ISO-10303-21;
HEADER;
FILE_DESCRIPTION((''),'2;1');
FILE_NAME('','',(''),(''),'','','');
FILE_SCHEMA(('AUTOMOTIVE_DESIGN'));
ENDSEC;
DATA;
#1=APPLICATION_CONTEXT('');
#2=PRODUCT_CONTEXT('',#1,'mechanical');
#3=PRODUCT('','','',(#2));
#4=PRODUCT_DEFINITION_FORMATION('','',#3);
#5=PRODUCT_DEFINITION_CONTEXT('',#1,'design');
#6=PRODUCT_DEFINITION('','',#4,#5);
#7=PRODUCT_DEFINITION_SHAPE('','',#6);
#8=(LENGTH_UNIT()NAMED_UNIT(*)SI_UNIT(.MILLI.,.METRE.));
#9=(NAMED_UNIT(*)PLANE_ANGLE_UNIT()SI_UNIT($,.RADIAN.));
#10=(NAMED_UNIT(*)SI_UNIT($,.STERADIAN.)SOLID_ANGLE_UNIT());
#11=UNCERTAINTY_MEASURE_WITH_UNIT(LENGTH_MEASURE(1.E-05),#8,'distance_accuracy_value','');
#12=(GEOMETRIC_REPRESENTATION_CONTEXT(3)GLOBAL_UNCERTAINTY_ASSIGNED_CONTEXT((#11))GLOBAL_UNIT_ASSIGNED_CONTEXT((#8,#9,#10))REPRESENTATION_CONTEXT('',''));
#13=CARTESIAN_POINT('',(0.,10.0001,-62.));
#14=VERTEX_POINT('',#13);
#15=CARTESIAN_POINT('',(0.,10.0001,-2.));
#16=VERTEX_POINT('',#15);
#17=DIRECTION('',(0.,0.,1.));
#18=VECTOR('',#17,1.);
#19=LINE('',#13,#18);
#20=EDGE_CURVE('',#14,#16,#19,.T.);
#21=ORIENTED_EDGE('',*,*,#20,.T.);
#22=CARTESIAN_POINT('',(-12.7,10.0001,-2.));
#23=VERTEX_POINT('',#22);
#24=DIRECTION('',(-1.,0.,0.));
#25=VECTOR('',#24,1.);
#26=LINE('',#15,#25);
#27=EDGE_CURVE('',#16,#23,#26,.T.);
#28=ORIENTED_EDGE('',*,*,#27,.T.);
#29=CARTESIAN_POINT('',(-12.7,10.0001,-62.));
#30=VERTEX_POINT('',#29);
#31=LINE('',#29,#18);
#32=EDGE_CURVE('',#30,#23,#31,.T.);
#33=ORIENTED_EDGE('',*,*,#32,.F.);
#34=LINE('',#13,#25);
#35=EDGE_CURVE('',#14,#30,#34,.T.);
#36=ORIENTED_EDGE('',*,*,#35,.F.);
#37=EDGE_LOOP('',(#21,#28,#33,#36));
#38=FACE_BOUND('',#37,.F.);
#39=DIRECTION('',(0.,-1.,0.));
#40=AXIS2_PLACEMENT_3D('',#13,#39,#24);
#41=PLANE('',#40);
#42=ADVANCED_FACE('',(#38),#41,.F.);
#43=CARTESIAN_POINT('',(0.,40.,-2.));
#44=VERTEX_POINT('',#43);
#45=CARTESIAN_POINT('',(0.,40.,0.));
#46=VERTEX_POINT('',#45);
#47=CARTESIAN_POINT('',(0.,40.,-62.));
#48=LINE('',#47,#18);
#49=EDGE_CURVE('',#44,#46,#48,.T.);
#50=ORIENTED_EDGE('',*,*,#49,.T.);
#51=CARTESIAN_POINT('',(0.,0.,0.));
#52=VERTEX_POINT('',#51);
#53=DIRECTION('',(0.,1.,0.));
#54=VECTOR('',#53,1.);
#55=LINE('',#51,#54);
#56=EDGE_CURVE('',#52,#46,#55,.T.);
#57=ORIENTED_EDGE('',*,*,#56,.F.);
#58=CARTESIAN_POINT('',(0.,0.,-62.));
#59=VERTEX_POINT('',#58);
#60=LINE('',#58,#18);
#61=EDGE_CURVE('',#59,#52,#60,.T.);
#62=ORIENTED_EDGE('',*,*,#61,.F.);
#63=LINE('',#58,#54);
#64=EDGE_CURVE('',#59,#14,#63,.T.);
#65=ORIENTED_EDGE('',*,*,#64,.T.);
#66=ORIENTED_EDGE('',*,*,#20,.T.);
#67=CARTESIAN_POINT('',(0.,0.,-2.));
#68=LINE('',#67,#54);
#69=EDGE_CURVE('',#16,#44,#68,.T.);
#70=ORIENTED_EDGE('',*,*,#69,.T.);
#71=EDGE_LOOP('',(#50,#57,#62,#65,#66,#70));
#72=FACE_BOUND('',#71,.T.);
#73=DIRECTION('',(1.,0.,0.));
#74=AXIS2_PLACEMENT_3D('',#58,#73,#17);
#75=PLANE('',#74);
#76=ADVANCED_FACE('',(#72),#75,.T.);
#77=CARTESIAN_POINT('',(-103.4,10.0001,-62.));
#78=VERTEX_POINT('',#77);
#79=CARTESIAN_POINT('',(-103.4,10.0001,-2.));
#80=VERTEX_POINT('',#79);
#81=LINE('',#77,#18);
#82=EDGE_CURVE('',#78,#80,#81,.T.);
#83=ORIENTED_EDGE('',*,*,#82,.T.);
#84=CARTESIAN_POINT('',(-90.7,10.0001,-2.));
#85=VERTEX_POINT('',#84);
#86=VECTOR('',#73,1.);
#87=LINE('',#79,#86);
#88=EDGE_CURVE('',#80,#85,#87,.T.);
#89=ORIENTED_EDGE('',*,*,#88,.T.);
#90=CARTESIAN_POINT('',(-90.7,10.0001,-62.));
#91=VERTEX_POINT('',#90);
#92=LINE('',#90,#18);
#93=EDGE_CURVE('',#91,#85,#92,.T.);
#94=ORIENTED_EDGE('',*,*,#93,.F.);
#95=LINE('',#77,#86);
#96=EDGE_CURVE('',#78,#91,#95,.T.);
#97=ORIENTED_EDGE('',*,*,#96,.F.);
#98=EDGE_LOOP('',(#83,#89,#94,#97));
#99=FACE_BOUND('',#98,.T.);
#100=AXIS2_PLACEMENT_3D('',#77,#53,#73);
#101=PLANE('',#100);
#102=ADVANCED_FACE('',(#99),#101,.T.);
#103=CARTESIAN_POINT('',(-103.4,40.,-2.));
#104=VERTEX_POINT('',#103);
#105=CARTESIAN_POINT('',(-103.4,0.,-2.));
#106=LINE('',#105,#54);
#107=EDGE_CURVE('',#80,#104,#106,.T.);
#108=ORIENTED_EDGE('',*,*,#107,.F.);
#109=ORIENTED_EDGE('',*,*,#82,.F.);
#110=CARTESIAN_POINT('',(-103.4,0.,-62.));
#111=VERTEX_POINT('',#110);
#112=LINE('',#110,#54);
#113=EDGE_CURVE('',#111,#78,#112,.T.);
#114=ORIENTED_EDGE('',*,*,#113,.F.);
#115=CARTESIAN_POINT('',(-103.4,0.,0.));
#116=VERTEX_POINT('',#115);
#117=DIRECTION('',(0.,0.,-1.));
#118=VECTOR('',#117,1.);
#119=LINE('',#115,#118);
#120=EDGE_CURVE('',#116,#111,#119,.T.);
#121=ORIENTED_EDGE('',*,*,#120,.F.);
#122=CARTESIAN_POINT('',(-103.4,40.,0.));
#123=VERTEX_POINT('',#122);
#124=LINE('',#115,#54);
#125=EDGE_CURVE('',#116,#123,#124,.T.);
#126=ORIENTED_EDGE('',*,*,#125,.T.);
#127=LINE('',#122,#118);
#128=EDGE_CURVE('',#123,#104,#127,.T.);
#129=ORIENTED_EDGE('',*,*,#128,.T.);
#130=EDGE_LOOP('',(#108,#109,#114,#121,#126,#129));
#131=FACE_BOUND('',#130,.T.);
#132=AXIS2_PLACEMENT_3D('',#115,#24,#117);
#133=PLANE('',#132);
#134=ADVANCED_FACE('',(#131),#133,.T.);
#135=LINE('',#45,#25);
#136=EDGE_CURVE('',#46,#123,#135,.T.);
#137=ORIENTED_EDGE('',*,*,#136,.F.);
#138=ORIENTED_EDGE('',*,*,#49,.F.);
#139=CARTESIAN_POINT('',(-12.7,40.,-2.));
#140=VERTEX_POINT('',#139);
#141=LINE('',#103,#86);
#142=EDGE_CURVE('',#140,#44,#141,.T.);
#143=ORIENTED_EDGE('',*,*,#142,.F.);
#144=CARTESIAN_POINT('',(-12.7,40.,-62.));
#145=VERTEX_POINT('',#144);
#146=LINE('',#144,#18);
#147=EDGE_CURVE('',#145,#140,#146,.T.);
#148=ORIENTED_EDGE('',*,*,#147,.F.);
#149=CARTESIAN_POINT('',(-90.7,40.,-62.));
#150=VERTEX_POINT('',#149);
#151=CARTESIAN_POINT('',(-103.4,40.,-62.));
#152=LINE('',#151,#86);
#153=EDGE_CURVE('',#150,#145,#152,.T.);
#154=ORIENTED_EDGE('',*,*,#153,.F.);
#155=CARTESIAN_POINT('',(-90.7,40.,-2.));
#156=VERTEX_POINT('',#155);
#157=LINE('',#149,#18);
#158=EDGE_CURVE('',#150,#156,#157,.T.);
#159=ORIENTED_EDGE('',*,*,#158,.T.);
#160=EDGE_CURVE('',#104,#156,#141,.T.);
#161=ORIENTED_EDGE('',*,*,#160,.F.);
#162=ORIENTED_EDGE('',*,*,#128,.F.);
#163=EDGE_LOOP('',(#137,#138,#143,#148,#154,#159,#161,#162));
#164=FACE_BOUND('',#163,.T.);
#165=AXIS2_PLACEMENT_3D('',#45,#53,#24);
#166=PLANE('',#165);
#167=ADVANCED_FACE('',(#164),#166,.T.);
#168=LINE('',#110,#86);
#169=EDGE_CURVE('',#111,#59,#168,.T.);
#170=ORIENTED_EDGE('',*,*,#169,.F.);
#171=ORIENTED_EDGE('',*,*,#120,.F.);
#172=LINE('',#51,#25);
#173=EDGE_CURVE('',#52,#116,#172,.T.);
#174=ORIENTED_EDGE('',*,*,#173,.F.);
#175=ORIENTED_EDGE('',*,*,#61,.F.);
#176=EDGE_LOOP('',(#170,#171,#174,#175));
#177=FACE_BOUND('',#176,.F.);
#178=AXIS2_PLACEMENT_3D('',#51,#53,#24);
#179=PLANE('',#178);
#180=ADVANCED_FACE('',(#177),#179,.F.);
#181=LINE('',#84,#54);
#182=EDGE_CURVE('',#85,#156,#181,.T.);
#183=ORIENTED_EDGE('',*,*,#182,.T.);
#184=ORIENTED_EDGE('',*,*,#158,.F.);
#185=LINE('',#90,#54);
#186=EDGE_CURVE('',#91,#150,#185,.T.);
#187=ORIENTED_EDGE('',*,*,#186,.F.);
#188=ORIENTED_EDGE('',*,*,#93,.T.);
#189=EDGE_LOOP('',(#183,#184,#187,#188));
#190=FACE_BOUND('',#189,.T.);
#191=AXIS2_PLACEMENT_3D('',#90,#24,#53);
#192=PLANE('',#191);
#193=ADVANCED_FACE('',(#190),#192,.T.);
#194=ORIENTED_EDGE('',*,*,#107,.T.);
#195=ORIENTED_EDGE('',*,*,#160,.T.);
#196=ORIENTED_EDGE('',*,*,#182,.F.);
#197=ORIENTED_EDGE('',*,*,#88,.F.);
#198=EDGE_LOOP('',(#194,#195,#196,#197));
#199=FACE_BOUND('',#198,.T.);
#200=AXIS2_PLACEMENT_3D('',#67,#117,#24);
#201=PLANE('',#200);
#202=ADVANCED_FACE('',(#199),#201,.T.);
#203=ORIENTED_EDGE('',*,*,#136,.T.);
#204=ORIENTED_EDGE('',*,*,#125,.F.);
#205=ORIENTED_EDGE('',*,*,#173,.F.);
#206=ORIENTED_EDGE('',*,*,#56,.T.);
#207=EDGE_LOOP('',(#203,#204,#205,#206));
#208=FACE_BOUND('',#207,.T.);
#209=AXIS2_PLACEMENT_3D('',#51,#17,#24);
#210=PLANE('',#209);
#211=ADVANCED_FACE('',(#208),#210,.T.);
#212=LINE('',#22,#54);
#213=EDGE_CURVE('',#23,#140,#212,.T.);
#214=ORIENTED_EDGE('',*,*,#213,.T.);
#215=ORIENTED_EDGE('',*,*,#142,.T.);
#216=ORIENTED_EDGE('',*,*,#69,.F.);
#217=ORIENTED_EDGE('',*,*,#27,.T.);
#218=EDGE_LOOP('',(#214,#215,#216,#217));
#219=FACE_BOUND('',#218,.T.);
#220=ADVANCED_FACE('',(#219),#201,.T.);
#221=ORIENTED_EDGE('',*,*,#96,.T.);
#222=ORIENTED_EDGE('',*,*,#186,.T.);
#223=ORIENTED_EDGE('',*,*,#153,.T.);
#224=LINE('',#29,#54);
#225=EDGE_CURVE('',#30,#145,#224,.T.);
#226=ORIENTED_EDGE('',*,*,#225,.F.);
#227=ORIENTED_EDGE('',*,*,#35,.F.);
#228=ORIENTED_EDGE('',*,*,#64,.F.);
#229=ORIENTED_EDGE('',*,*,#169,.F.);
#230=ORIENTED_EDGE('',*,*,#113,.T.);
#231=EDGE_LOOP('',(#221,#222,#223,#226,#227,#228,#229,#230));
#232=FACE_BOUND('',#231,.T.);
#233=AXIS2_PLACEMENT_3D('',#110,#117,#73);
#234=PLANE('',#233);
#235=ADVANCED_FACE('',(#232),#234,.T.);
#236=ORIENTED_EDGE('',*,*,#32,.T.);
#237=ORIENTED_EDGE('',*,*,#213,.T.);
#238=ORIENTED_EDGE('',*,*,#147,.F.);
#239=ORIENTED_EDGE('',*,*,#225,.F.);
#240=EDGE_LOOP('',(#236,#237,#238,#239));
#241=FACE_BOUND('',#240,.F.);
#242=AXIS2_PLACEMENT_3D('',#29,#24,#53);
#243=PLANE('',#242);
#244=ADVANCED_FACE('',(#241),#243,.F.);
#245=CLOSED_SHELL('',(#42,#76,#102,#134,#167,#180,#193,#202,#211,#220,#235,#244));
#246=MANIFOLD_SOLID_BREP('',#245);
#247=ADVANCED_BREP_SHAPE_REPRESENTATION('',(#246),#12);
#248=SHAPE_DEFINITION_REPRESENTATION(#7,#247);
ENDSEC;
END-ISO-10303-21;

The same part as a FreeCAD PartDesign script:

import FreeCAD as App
import Part
import Sketcher
Q = App.Units.Quantity

doc = App.newDocument("Part")
body = doc.addObject("PartDesign::Body", "Body")

# Sketch on XZ plane
sketch1 = body.newObject("Sketcher::SketchObject", "Sketch")
sketch1.AttachmentSupport = (doc.getObject("XZ_Plane"), [""])
sketch1.MapMode = "FlatFace"
sketch1.addGeometry([
    Part.LineSegment(App.Vector(-103, 0, 0), App.Vector(0, 0, 0)),
    Part.LineSegment(App.Vector(0, 0, 0), App.Vector(0, -62, 0)),
    Part.LineSegment(App.Vector(0, -62, 0), App.Vector(-103, -62, 0)),
    Part.LineSegment(App.Vector(-103, -62, 0), App.Vector(-103, 0, 0)),
], False)
sketch1.addConstraint([
    Sketcher.Constraint("Coincident", 0, 2, 1, 1),
    Sketcher.Constraint("Coincident", 1, 2, 2, 1),
    Sketcher.Constraint("Coincident", 2, 2, 3, 1),
    Sketcher.Constraint("Coincident", 3, 2, 0, 1),
    Sketcher.Constraint("Horizontal", 0),
    Sketcher.Constraint("Vertical", 1),
    Sketcher.Constraint("Horizontal", 2),
    Sketcher.Constraint("Vertical", 3),
    Sketcher.Constraint("Coincident", 0, 2, -1, 1),
    Sketcher.Constraint("DistanceY", 1, 2, 1, 1, Q("62 mm")),
    Sketcher.Constraint("DistanceX", 0, 1, 0, 2, Q("103.4 mm")),
])
pad1 = body.newObject("PartDesign::Pad", "Pad")
pad1.Profile = sketch1
pad1.Length = 40
pad1.Reversed = True

# Sketch on XY plane
sketch2 = body.newObject("Sketcher::SketchObject", "Sketch001")
sketch2.AttachmentSupport = (doc.getObject("XY_Plane"), [""])
sketch2.MapMode = "FlatFace"
sketch2.AttachmentOffset = App.Placement(App.Vector(0, 0, -62), App.Rotation())
sketch2.addGeometry([
    Part.LineSegment(App.Vector(-103, 10, 0), App.Vector(-103, 40, 0)),  # 0
    Part.LineSegment(App.Vector(-103, 40, 0), App.Vector(-91, 40, 0)),  # 1
    Part.LineSegment(App.Vector(-91, 40, 0), App.Vector(-91, 10, 0)),  # 2
    Part.LineSegment(App.Vector(-91, 10, 0), App.Vector(-103, 10, 0)),  # 3
    Part.LineSegment(App.Vector(-13, 10, 0), App.Vector(-13, 40, 0)),  # 4
    Part.LineSegment(App.Vector(-13, 40, 0), App.Vector(0, 40, 0)),  # 5
    Part.LineSegment(App.Vector(0, 40, 0), App.Vector(0, 10, 0)),  # 6
    Part.LineSegment(App.Vector(0, 10, 0), App.Vector(-13, 10, 0)),  # 7
], False)
sketch2.addConstraint([
    Sketcher.Constraint("Coincident", 0, 2, 1, 1),
    Sketcher.Constraint("Coincident", 1, 2, 2, 1),
    Sketcher.Constraint("Coincident", 2, 2, 3, 1),
    Sketcher.Constraint("Coincident", 3, 2, 0, 1),
    Sketcher.Constraint("Coincident", 4, 2, 5, 1),
    Sketcher.Constraint("Coincident", 5, 2, 6, 1),
    Sketcher.Constraint("Coincident", 6, 2, 7, 1),
    Sketcher.Constraint("Coincident", 7, 2, 4, 1),
    Sketcher.Constraint("Vertical", 0),
    Sketcher.Constraint("Horizontal", 1),
    Sketcher.Constraint("Vertical", 2),
    Sketcher.Constraint("Horizontal", 3),
    Sketcher.Constraint("Vertical", 4),
    Sketcher.Constraint("Horizontal", 5),
    Sketcher.Constraint("Vertical", 6),
    Sketcher.Constraint("Horizontal", 7),
    Sketcher.Constraint("PointOnObject", 5, 2, -2),
    Sketcher.Constraint("Horizontal", 1, 2, 4, 2),
    Sketcher.Constraint("Horizontal", 3, 2, 6, 2),
    Sketcher.Constraint("Equal", 3, 5),
    Sketcher.Constraint("DistanceY", 0, 1, 0, 2, Q("30 mm")),
    Sketcher.Constraint("DistanceX", 1, 1, 1, 2, Q("12.7 mm")),
    Sketcher.Constraint("DistanceY", -1, 1, 0, 2, Q("40 mm")),
    Sketcher.Constraint("DistanceX", 1, 2, 4, 2, Q("78 mm")),
])
pocket1 = body.newObject("PartDesign::Pocket", "Pocket")
pocket1.Profile = sketch2
pocket1.Length = 60
pocket1.Reversed = True

doc.recompute()
